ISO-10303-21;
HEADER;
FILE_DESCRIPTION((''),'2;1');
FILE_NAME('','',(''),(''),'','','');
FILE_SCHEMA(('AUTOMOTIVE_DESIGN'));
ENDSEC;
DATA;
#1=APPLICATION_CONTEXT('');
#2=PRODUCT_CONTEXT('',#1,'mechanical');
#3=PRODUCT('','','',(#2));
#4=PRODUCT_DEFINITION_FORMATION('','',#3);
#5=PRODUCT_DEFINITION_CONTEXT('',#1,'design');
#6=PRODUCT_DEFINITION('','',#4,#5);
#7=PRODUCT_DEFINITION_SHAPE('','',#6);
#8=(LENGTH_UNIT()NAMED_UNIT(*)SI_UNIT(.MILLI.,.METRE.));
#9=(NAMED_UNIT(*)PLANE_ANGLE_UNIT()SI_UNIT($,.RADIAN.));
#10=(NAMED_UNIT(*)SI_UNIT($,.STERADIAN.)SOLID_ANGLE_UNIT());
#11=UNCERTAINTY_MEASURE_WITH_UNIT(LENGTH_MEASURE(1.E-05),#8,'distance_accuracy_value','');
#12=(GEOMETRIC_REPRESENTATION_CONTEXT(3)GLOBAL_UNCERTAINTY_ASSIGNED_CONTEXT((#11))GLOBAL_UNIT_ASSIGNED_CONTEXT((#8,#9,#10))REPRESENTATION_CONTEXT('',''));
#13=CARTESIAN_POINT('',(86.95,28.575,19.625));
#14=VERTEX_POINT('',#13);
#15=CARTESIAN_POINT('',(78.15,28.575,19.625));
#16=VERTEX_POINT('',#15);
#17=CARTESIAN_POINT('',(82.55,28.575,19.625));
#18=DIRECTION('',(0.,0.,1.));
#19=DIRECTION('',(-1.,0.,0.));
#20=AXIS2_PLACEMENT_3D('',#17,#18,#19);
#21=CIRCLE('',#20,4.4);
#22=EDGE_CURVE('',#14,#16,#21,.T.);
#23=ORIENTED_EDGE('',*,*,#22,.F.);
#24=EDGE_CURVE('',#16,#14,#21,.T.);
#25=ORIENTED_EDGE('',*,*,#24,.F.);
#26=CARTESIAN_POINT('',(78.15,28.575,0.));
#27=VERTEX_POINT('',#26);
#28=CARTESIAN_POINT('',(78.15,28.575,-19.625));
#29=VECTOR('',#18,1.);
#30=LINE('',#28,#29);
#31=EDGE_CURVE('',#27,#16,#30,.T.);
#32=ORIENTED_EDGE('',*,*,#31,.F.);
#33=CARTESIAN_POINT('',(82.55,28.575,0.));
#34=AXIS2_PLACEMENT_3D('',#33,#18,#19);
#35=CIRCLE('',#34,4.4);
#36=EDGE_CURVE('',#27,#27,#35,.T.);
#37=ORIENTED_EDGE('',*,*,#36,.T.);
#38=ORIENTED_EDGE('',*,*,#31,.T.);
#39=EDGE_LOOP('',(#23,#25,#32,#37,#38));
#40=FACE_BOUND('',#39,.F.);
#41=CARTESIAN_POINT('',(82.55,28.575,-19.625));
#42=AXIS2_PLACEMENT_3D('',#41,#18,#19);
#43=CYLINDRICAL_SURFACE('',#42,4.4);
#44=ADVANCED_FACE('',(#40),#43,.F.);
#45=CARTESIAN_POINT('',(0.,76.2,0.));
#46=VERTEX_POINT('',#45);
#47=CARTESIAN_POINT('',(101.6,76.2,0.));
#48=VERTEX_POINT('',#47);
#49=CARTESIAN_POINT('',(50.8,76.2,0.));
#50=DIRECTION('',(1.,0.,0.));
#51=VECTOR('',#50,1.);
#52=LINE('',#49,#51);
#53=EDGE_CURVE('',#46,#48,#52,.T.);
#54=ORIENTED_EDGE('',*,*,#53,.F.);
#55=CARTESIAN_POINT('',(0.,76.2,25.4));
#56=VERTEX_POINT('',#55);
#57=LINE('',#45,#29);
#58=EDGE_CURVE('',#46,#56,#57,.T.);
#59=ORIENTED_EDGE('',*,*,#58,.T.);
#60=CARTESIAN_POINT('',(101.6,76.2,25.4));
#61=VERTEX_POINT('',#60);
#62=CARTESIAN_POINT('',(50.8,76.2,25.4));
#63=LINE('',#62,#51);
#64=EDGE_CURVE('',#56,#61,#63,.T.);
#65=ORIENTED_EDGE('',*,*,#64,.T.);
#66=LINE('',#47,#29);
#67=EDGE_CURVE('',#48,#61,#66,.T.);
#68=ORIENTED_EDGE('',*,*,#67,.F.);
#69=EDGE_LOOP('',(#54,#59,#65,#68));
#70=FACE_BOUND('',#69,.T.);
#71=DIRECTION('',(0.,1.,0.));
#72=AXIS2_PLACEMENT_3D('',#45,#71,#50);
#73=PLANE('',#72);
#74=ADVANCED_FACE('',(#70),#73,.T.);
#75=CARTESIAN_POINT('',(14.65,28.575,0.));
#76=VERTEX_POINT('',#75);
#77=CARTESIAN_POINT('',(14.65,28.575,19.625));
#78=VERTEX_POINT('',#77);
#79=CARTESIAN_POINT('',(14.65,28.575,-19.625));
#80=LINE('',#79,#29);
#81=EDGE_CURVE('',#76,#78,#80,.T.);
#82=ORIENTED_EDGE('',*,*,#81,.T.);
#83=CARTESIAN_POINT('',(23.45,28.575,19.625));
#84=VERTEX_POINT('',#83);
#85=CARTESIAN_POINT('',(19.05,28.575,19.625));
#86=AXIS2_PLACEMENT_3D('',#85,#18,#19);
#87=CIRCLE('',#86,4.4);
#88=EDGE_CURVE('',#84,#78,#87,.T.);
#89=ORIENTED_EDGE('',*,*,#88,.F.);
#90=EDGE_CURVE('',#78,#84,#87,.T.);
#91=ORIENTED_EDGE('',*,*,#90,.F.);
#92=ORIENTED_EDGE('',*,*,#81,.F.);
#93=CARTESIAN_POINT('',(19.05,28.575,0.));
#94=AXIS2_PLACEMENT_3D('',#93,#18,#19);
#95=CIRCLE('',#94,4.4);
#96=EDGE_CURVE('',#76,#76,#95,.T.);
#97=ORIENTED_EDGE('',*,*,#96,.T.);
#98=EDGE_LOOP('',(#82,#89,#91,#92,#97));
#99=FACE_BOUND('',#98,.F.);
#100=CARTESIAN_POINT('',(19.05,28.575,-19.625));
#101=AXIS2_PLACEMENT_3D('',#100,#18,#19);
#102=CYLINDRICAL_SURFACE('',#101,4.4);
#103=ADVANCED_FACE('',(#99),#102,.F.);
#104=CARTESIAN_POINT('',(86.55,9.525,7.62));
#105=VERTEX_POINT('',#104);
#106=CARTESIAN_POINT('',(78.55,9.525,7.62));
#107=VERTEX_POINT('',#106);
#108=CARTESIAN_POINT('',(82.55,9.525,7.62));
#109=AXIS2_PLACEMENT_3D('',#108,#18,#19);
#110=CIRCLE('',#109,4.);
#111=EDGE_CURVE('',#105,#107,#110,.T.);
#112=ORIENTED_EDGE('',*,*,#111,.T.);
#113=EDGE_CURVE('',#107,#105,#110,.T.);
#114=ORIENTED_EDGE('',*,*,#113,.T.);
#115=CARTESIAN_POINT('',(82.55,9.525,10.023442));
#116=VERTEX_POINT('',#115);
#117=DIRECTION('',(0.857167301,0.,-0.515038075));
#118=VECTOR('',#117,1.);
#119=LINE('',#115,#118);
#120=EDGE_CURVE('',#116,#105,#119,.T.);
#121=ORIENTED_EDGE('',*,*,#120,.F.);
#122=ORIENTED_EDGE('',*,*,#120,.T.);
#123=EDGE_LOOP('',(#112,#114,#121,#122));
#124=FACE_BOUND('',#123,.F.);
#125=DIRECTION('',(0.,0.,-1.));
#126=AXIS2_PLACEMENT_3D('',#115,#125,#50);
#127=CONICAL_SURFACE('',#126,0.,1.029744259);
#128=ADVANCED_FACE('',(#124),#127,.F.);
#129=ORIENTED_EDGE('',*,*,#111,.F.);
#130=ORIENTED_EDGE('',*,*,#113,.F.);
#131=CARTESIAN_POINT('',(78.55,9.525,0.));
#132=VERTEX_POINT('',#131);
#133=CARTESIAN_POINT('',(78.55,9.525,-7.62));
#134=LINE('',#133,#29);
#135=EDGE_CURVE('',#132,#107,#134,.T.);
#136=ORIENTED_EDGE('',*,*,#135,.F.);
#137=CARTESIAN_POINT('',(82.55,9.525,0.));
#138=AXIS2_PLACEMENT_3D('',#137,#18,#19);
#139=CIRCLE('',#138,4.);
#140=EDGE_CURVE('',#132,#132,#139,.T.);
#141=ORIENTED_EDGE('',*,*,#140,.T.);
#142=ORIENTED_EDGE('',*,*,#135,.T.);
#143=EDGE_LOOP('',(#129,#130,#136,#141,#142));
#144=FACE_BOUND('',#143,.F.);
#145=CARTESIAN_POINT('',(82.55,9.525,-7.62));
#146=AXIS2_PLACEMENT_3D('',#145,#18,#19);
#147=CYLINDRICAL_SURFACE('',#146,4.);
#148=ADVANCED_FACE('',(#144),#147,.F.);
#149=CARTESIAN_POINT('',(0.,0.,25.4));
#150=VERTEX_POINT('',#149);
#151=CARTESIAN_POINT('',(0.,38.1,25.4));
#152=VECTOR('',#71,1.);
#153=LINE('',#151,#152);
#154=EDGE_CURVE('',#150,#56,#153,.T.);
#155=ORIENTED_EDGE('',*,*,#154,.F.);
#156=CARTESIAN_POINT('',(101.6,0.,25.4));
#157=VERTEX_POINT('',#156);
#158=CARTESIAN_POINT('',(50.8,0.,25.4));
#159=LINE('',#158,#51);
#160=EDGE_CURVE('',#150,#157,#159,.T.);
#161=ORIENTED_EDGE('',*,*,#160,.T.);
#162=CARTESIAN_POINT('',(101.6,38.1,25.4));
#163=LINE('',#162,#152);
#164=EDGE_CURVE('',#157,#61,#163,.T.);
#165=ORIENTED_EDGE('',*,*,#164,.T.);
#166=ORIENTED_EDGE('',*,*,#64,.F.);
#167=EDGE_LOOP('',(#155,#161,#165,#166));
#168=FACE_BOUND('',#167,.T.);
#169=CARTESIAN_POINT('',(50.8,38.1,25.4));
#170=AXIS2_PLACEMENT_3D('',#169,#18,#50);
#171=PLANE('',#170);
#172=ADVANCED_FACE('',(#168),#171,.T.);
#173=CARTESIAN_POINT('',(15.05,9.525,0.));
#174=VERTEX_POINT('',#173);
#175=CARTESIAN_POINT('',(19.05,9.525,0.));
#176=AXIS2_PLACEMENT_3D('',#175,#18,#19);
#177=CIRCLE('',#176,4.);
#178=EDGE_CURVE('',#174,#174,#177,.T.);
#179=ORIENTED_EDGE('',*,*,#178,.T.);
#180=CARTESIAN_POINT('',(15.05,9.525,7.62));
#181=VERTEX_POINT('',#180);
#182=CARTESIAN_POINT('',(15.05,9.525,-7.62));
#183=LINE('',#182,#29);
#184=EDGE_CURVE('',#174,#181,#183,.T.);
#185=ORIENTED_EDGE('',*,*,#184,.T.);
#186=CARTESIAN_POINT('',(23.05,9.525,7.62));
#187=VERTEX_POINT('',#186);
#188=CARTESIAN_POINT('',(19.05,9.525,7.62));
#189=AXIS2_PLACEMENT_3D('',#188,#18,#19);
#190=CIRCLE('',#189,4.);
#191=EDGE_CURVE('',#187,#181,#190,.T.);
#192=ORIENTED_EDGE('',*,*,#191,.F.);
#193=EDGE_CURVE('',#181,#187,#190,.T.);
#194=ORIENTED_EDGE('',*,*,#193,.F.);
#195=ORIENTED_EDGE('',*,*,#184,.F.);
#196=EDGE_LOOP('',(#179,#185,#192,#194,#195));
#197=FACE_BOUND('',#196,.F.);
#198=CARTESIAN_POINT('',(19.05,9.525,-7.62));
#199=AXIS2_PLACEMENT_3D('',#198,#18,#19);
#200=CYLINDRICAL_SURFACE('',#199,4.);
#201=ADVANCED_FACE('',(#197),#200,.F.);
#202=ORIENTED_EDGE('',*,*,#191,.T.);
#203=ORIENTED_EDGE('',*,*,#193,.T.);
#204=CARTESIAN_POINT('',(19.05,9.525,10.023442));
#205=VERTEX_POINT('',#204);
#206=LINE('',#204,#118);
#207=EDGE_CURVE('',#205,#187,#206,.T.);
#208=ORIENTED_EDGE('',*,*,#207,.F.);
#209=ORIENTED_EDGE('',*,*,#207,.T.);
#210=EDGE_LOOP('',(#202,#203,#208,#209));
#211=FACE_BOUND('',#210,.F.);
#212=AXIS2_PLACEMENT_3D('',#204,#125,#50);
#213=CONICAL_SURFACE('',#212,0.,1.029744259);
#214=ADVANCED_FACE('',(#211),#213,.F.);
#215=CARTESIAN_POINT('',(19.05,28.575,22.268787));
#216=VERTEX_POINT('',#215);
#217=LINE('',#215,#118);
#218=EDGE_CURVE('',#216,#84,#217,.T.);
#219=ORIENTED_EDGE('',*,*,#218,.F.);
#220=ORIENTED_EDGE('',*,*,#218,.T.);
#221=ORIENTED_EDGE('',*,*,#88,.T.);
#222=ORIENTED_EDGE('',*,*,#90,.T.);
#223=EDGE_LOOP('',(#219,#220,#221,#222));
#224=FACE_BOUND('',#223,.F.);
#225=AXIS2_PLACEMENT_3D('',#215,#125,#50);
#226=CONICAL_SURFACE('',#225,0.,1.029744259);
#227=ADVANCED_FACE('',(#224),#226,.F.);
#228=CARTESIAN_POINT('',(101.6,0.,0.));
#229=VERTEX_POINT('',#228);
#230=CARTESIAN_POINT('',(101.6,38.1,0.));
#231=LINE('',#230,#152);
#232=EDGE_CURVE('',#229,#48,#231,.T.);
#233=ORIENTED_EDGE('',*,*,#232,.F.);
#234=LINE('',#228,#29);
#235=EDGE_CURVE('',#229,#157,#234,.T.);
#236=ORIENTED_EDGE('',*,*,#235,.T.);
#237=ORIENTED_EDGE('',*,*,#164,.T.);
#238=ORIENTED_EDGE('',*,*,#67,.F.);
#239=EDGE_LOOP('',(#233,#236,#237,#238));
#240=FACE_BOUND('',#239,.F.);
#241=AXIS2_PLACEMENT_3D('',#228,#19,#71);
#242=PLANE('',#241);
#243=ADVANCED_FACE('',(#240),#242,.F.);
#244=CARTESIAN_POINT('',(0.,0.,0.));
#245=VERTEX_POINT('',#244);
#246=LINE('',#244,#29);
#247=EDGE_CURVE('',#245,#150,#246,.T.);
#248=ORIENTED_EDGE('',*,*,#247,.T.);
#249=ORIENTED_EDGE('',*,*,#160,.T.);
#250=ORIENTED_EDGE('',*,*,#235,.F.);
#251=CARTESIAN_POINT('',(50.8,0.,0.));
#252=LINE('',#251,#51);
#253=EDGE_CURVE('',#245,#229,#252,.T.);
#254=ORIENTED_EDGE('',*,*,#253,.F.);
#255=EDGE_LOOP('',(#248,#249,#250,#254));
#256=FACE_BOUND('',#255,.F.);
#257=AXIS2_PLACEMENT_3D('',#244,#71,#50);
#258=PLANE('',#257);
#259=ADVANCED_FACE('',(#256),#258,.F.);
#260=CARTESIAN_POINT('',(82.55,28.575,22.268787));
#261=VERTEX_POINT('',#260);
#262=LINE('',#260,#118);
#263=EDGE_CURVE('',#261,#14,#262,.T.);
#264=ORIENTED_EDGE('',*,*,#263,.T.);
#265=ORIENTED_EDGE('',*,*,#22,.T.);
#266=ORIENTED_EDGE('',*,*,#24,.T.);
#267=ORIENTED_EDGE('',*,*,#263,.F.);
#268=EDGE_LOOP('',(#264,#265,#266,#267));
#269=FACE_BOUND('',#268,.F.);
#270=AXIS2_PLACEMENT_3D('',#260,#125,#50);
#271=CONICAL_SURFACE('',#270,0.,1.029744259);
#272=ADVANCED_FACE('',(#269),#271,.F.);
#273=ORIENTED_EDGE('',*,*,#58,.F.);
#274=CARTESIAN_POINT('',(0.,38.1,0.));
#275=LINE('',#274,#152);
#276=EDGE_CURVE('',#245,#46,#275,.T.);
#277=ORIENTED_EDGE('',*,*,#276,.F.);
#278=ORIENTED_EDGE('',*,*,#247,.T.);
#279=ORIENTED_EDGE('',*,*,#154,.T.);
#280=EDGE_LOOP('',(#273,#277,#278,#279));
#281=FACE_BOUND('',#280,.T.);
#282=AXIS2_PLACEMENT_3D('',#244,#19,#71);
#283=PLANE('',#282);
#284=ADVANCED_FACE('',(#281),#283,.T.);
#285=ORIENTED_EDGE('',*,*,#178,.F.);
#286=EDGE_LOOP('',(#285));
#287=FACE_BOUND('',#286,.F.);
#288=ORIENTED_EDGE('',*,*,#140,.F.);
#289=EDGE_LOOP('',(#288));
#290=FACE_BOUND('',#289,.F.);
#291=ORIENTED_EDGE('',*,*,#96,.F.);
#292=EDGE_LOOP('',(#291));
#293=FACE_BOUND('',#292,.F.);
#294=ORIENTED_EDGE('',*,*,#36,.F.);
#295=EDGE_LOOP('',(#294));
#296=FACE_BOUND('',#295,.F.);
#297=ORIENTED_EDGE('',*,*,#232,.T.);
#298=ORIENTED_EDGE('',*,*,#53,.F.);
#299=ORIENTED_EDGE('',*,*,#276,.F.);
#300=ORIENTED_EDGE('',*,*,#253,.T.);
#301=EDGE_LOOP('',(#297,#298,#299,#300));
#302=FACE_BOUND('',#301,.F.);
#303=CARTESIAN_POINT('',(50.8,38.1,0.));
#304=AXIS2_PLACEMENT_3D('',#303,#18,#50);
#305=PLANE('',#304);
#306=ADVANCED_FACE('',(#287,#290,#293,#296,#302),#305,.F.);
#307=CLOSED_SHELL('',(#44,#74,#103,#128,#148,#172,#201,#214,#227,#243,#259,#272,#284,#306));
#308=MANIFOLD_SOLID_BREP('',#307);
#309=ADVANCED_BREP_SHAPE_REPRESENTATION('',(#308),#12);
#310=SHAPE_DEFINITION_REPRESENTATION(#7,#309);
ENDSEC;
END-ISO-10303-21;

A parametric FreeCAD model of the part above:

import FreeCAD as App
import Part
import Sketcher
Q = App.Units.Quantity


def add_polygon(sketch, points):
    """Adds a closed chain of lines whose ends are joined by coincident constraints."""
    first, n = sketch.GeometryCount, len(points)
    for a, b in zip(points, points[1:] + points[:1]):
        sketch.addGeometry(Part.LineSegment(App.Vector(*a, 0), App.Vector(*b, 0)), False)
    for i in range(n):
        sketch.addConstraint(Sketcher.Constraint("Coincident", first + i, 2, first + (i + 1) % n, 1))

doc = App.newDocument("Part")
params = doc.addObject("Spreadsheet::Sheet", "Params")
for row, (alias, value) in enumerate([
    ("sketch1_width", "4 in"),
    ("sketch1_height", "3 in"),
    ("pad1_length", "1 in"),
    ("hole_diameter", "8.8 mm"),
    ("hole_depth", "19.625 mm"),
    ("hole2_diameter", "8 mm"),
    ("hole2_depth", "0.3 in"),
], start=1):
    params.set(f"A{row}", alias)
    params.set(f"B{row}", "=" + value)
    params.setAlias(f"B{row}", alias)

body = doc.addObject("PartDesign::Body", "Body")

# Sketch on XY plane
sketch1 = body.newObject("Sketcher::SketchObject", "Sketch")
sketch1.AttachmentSupport = (doc.getObject("XY_Plane"), [""])
sketch1.MapMode = "FlatFace"
add_polygon(sketch1, [(0, 76), (0, 0), (102, 0), (102, 76)])  # lines 0-3
sketch1.addConstraint([
    Sketcher.Constraint("Vertical", 0),
    Sketcher.Constraint("Horizontal", 1),
    Sketcher.Constraint("Vertical", 2),
    Sketcher.Constraint("Horizontal", 3),
    Sketcher.Constraint("Coincident", 0, 2, -1, 1),
    Sketcher.Constraint("DistanceX", 1, 1, 1, 2, Q("4 in")),
    Sketcher.Constraint("DistanceY", 0, 2, 0, 1, Q("3 in")),
])
sketch1.setExpression("Constraints[9]", "Params.sketch1_width")
sketch1.setExpression("Constraints[10]", "Params.sketch1_height")
pad1 = body.newObject("PartDesign::Pad", "Pad")
pad1.Profile = sketch1
pad1.setExpression("Length", "Params.pad1_length")

# Sketch on XY plane
sketch2 = body.newObject("Sketcher::SketchObject", "Sketch001")
sketch2.AttachmentSupport = (doc.getObject("XY_Plane"), [""])
sketch2.MapMode = "FlatFace"
sketch2.addGeometry([
    Part.Circle(App.Vector(19.1, 28.6, 0), App.Vector(0, 0, 1), 4.4),
    Part.Circle(App.Vector(82.5, 28.6, 0), App.Vector(0, 0, 1), 4.4),
], False)
sketch2.addConstraint([
    Sketcher.Constraint("Equal", 0, 1),
    Sketcher.Constraint("Horizontal", 0, 3, 1, 3),
    Sketcher.Constraint("DistanceX", 0, 3, 1, 3, Q("2.5 in")),
    Sketcher.Constraint("Diameter", 0, Q("8.8 mm")),
    Sketcher.Constraint("DistanceX", -1, 1, 0, 3, Q("0.75 in")),
    Sketcher.Constraint("DistanceY", -1, 1, 0, 3, Q("1.125 in")),
])
doc.recompute()
hole = body.newObject("PartDesign::Hole", "Hole")
hole.Profile = sketch2
hole.ThreadType = "None"
hole.setExpression("Diameter", "Params.hole_diameter")
hole.DepthType = "Dimension"
hole.setExpression("Depth", "Params.hole_depth")
hole.DrillPoint = "Angled"
hole.DrillPointAngle = 118
hole.Reversed = True

# Sketch on XY plane
sketch3 = body.newObject("Sketcher::SketchObject", "Sketch002")
sketch3.AttachmentSupport = (doc.getObject("XY_Plane"), [""])
sketch3.MapMode = "FlatFace"
sketch3.addGeometry([
    Part.Circle(App.Vector(82.5, 9.5, 0), App.Vector(0, 0, 1), 4),
    Part.Circle(App.Vector(19.1, 9.5, 0), App.Vector(0, 0, 1), 4),
], False)
sketch3.addConstraint([
    Sketcher.Constraint("Equal", 0, 1),
    Sketcher.Constraint("Horizontal", 0, 3, 1, 3),
    Sketcher.Constraint("DistanceX", 1, 3, 0, 3, Q("2.5 in")),
    Sketcher.Constraint("Diameter", 0, Q("8 mm")),
    Sketcher.Constraint("DistanceX", -1, 1, 0, 3, Q("3.25 in")),
    Sketcher.Constraint("DistanceY", -1, 1, 0, 3, Q("0.375 in")),
])
doc.recompute()
hole2 = body.newObject("PartDesign::Hole", "Hole001")
hole2.Profile = sketch3
hole2.ThreadType = "None"
hole2.setExpression("Diameter", "Params.hole2_diameter")
hole2.DepthType = "Dimension"
hole2.setExpression("Depth", "Params.hole2_depth")
hole2.DrillPoint = "Angled"
hole2.DrillPointAngle = 118
hole2.Reversed = True

doc.recompute()
